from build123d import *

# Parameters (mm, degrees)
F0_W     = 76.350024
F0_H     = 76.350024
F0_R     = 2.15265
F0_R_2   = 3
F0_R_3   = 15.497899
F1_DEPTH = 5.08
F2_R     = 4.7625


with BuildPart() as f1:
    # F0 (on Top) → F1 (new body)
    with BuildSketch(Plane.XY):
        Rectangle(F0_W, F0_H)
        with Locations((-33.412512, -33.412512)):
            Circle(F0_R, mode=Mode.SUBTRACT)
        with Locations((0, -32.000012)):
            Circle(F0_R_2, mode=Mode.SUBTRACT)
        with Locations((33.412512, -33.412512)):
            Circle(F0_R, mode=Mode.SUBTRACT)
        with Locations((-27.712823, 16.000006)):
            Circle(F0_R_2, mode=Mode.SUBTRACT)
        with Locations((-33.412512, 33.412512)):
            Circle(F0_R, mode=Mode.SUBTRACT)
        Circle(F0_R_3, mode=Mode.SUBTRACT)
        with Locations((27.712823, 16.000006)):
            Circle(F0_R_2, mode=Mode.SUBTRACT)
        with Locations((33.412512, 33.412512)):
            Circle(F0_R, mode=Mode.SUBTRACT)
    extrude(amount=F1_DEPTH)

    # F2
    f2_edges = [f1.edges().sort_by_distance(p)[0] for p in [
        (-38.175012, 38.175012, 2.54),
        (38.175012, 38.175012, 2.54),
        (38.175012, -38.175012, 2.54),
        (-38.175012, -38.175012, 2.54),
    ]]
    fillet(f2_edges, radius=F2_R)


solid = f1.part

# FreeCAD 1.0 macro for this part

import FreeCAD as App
import Part
import Sketcher

V = App.Vector
Q = App.Units.Quantity


def edges_at(feature, points):
    """Names of the edges that pass closest to the given points."""
    edges = feature.Shape.Edges
    near = lambda p: min(range(len(edges)), key=lambda i: edges[i].distToShape(Part.Vertex(*p))[0])
    return sorted({f"Edge{near(p) + 1}" for p in points})

doc = App.newDocument("Part")
body = doc.addObject("PartDesign::Body", "Body")

# Sketch on XY plane
sketch1 = body.newObject("Sketcher::SketchObject", "Sketch")
sketch1.AttachmentSupport = (doc.getObject("XY_Plane"), [""])
sketch1.MapMode = "FlatFace"
sketch1.addGeometry([
    Part.LineSegment(V(-38.175012, 38.175012, 0), V(-38.175012, -38.175012, 0)),  # 0
    Part.LineSegment(V(-38.175012, -38.175012, 0), V(38.175012, -38.175012, 0)),  # 1
    Part.LineSegment(V(38.175012, -38.175012, 0), V(38.175012, 38.175012, 0)),  # 2
    Part.LineSegment(V(38.175012, 38.175012, 0), V(-38.175012, 38.175012, 0)),  # 3
    Part.Circle(V(-33.412512, -33.412512, 0), V(0, 0, 1), 2.15265),  # 4
    Part.Circle(V(0, -32.000012, 0), V(0, 0, 1), 3),  # 5
    Part.Circle(V(33.412512, -33.412512, 0), V(0, 0, 1), 2.15265),  # 6
    Part.Circle(V(-27.712823, 16.000006, 0), V(0, 0, 1), 3),  # 7
    Part.Circle(V(-33.412512, 33.412512, 0), V(0, 0, 1), 2.15265),  # 8
    Part.Circle(V(0, 0, 0), V(0, 0, 1), 15.497899),  # 9
    Part.Circle(V(27.712823, 16.000006, 0), V(0, 0, 1), 3),  # 10
    Part.Circle(V(33.412512, 33.412512, 0), V(0, 0, 1), 2.15265),  # 11
], False)
sketch1.addConstraint([
    Sketcher.Constraint("Coincident", 0, 2, 1, 1),
    Sketcher.Constraint("Coincident", 1, 2, 2, 1),
    Sketcher.Constraint("Coincident", 2, 2, 3, 1),
    Sketcher.Constraint("Coincident", 3, 2, 0, 1),
    Sketcher.Constraint("Vertical", 0),
    Sketcher.Constraint("Horizontal", 1),
    Sketcher.Constraint("Vertical", 2),
    Sketcher.Constraint("Horizontal", 3),
    Sketcher.Constraint("Coincident", 9, 3, -1, 1),
    Sketcher.Constraint("Equal", 4, 6),
    Sketcher.Constraint("Equal", 5, 7),
    Sketcher.Constraint("Equal", 6, 8),
    Sketcher.Constraint("Equal", 7, 10),
    Sketcher.Constraint("Equal", 8, 11),
    Sketcher.Constraint("Symmetric", 6, 3, 8, 3, -1, 1),
    Sketcher.Constraint("Symmetric", 4, 3, 11, 3, -1, 1),
    Sketcher.Constraint("Symmetric", 0, 2, 2, 2, -1, 1),
    Sketcher.Constraint("Symmetric", 4, 3, 6, 3, -2),
    Sketcher.Constraint("Symmetric", 7, 3, 10, 3, -2),
    Sketcher.Constraint("PointOnObject", 5, 3, -2),
    Sketcher.Constraint("Equal", 3, 0),
    Sketcher.Constraint("Diameter", 4, Q("0.1695 in")),
    Sketcher.Constraint("Diameter", 5, Q("6 mm")),
    Sketcher.Constraint("Diameter", 9, Q("30.995798 mm")),
    Sketcher.Constraint("DistanceX", 0, 2, 4, 3, Q("0.1875 in")),
    Sketcher.Constraint("DistanceY", 0, 2, 4, 3, Q("0.1875 in")),
    Sketcher.Constraint("DistanceY", 4, 3, 5, 3, Q("1.4125 mm")),
    Sketcher.Constraint("DistanceX", 1, 1, 1, 2, Q("76.350024 mm")),
    Sketcher.Constraint("DistanceX", 4, 3, 7, 3, Q("5.699689 mm")),
    Sketcher.Constraint("DistanceY", -1, 1, 7, 3, Q("16.000006 mm")),
])
pad1 = body.newObject("PartDesign::Pad", "Pad")
pad1.Profile = sketch1
pad1.Length = Q("0.2 in")
doc.recompute()

fillet = body.newObject("PartDesign::Fillet", "Fillet")
fillet.Base = (pad1, edges_at(pad1, [
    (-38.175, 38.175, 2.54),
    (38.175, 38.175, 2.54),
    (38.175, -38.175, 2.54),
    (-38.175, -38.175, 2.54),
]))
fillet.Radius = Q("0.1875 in")

doc.recompute()
